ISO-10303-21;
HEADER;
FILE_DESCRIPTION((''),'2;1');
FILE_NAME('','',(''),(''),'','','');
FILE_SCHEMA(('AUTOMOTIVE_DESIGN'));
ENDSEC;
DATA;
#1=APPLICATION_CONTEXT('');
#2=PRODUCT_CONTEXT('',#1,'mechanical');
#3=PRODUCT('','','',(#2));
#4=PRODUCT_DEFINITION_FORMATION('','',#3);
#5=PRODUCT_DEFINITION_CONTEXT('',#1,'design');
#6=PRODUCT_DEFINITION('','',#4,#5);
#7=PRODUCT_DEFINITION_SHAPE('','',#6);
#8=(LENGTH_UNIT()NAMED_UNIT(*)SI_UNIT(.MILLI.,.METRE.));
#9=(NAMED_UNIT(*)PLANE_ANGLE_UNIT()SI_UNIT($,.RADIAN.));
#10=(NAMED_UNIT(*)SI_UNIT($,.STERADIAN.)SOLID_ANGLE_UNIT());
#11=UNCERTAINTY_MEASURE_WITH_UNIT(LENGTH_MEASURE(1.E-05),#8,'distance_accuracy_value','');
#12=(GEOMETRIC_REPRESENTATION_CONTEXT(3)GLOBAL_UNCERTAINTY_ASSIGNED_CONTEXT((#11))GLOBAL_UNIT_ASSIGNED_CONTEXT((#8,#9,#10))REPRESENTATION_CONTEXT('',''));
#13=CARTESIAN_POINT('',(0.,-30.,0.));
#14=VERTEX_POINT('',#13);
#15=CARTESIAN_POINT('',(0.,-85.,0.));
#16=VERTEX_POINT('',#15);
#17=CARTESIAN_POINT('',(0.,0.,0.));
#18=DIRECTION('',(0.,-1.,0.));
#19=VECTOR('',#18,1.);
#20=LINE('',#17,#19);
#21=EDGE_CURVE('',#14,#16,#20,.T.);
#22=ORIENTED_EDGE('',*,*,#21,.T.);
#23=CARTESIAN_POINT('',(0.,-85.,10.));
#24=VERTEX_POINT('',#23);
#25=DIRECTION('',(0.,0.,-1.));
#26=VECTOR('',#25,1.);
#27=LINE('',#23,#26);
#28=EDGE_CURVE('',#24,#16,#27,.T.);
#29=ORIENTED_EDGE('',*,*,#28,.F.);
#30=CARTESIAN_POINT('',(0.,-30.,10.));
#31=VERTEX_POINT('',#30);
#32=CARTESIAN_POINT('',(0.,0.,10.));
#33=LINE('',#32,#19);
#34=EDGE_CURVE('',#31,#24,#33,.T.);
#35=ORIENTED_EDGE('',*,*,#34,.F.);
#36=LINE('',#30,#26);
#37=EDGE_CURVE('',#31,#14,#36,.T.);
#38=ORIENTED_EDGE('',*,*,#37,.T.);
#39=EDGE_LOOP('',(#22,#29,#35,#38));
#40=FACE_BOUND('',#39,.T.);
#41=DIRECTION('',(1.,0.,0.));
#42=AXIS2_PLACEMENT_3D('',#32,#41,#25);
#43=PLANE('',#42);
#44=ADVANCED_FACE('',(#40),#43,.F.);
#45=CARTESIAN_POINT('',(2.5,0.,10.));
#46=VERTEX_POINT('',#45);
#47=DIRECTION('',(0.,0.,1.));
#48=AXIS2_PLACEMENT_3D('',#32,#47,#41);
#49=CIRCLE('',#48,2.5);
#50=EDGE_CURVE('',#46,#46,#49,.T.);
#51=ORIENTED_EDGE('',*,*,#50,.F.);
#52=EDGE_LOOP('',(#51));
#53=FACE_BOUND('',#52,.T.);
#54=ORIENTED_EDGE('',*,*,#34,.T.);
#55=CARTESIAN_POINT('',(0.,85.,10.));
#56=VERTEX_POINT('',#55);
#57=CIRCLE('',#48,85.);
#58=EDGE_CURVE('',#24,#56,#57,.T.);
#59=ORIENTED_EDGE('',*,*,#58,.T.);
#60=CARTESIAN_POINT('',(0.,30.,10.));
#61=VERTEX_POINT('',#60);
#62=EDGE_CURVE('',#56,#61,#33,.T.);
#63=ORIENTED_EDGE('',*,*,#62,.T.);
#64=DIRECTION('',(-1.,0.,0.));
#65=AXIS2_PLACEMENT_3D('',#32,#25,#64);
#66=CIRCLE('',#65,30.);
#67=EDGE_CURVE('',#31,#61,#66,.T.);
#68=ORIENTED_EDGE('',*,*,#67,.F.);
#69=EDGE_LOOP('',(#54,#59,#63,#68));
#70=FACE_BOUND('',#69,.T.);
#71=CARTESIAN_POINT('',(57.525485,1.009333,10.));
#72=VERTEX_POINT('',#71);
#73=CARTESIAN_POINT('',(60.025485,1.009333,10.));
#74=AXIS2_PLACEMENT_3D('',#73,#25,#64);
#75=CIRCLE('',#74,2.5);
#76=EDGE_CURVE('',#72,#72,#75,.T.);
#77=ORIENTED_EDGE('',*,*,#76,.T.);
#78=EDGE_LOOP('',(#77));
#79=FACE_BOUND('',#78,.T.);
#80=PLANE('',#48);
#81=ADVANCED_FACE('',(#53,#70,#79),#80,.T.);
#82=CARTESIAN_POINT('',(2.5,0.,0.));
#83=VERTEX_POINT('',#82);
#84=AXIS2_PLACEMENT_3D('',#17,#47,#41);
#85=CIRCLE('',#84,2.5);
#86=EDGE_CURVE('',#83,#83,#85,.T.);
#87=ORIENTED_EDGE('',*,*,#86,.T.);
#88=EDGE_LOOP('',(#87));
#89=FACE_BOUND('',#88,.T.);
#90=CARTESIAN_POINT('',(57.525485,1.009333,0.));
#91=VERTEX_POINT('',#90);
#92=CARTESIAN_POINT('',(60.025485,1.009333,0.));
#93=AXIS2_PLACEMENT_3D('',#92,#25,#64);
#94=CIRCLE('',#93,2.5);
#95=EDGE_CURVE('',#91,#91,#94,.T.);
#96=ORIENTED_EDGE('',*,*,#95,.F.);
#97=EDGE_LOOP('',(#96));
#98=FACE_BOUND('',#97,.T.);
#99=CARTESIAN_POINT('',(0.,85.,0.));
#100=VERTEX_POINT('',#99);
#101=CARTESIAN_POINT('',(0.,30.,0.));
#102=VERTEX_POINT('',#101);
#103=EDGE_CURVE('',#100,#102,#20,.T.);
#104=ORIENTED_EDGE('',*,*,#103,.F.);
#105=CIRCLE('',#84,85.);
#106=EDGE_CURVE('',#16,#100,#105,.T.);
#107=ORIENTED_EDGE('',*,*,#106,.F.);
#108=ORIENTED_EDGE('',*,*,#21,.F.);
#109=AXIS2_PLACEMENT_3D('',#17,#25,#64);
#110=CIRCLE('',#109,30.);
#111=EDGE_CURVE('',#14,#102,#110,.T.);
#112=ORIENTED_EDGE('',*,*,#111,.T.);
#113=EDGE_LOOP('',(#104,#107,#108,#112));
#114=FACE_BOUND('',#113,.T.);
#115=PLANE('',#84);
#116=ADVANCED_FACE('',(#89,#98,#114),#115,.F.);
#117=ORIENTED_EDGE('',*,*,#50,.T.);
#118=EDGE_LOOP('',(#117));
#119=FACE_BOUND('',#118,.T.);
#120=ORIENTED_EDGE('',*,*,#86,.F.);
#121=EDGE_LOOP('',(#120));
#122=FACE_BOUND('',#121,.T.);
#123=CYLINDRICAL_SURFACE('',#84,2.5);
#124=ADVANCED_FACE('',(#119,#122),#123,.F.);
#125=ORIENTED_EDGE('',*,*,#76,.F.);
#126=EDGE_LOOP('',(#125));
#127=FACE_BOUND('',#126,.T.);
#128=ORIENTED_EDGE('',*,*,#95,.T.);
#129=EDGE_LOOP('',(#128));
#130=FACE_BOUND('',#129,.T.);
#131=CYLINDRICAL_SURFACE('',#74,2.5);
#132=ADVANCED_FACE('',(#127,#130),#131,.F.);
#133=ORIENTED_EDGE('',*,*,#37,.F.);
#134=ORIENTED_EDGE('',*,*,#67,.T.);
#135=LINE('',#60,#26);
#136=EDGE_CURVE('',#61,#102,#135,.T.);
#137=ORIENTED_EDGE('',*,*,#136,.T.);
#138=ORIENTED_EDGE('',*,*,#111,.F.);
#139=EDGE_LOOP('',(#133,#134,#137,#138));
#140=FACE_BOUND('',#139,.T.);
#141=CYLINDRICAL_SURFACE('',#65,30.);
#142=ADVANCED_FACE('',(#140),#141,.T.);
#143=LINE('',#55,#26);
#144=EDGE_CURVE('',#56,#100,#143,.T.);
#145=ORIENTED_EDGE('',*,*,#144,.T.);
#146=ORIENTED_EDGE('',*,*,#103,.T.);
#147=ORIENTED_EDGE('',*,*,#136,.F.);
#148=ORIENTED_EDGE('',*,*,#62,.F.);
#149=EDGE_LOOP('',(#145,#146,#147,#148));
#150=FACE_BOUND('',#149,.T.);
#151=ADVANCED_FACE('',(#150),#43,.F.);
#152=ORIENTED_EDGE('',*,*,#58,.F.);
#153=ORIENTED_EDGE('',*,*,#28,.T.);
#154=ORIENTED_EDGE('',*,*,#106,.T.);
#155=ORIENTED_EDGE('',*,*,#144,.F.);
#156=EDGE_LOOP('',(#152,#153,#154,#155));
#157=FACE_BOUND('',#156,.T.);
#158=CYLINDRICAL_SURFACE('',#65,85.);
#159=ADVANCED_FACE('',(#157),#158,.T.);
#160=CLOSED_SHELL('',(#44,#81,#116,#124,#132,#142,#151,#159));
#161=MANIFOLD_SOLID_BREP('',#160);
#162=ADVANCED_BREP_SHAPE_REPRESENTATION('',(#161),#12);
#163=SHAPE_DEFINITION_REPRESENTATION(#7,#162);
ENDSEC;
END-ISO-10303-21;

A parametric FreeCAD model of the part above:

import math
import FreeCAD as App
import Part
import Sketcher
Q = App.Units.Quantity

doc = App.newDocument("Part")
body = doc.addObject("PartDesign::Body", "Body")

sketch1 = body.newObject("Sketcher::SketchObject", "Sketch")
sketch1.AttachmentSupport = (doc.getObject("XY_Plane"), [""])
sketch1.MapMode = "FlatFace"
sketch1.addGeometry(Part.Circle(App.Vector(0, 0, 0), App.Vector(0, 0, 1), 85), False)
sketch1.addConstraint(Sketcher.Constraint("Coincident", 0, 3, -1, 1))
sketch1.addConstraint(Sketcher.Constraint("Diameter", 0, Q("170 mm")))
pad1 = body.newObject("PartDesign::Pad", "Pad")
pad1.Profile = sketch1
pad1.Length = 10

sketch2 = body.newObject("Sketcher::SketchObject", "Sketch001")
sketch2.AttachmentSupport = (doc.getObject("XY_Plane"), [""])
sketch2.MapMode = "FlatFace"
sketch2.AttachmentOffset = App.Placement(App.Vector(0, 0, 10), App.Rotation())
sketch2.addGeometry(Part.Circle(App.Vector(0, 0, 0), App.Vector(0, 0, 1), 2.5), False)
sketch2.addGeometry(Part.Circle(App.Vector(80, 0, 0), App.Vector(0, 0, 1), 2.5), False)
sketch2.addConstraint(Sketcher.Constraint("Coincident", 0, 3, -1, 1))
sketch2.addConstraint(Sketcher.Constraint("Equal", 0, 1))
sketch2.addConstraint(Sketcher.Constraint("PointOnObject", 1, 3, -1))
sketch2.addConstraint(Sketcher.Constraint("Diameter", 0, Q("5 mm")))
sketch2.addConstraint(Sketcher.Constraint("DistanceX", -1, 1, 1, 3, Q("80 mm")))
pocket1 = body.newObject("PartDesign::Pocket", "Pocket")
pocket1.Profile = sketch2
pocket1.Type = "ThroughAll"

sketch3 = body.newObject("Sketcher::SketchObject", "Sketch002")
sketch3.AttachmentSupport = (doc.getObject("XY_Plane"), [""])
sketch3.MapMode = "FlatFace"
sketch3.addGeometry(Part.Circle(App.Vector(60, 1, 0), App.Vector(0, 0, 1), 2.5), False)
sketch3.addConstraint(Sketcher.Constraint("Diameter", 0, Q("5 mm")))
sketch3.addConstraint(Sketcher.Constraint("DistanceX", -1, 1, 0, 3, Q("60.025485 mm")))
sketch3.addConstraint(Sketcher.Constraint("DistanceY", -1, 1, 0, 3, Q("1.009333 mm")))
pocket2 = body.newObject("PartDesign::Pocket", "Pocket001")
pocket2.Profile = sketch3
pocket2.Type = "ThroughAll"
pocket2.Reversed = True

sketch4 = body.newObject("Sketcher::SketchObject", "Sketch003")
sketch4.AttachmentSupport = (doc.getObject("XY_Plane"), [""])
sketch4.MapMode = "FlatFace"
sketch4.addGeometry(Part.ArcOfCircle(Part.Circle(App.Vector(0, 0, 0), App.Vector(0, 0, 1), 85), math.radians(90), math.radians(180)), False)
sketch4.addGeometry(Part.LineSegment(App.Vector(0, 85, 0), App.Vector(0, 30, 0)), False)
sketch4.addGeometry(Part.ArcOfCircle(Part.Circle(App.Vector(0, 0, 0), App.Vector(0, 0, 1), 30), math.radians(90), math.radians(180)), False)
sketch4.addGeometry(Part.ArcOfCircle(Part.Circle(App.Vector(0, 0, 0), App.Vector(0, 0, 1), 30), math.radians(180), math.radians(270)), False)
sketch4.addGeometry(Part.LineSegment(App.Vector(0, -30, 0), App.Vector(0, -85, 0)), False)
sketch4.addGeometry(Part.ArcOfCircle(Part.Circle(App.Vector(0, 0, 0), App.Vector(0, 0, 1), 85), math.radians(180), math.radians(270)), False)
sketch4.addConstraint(Sketcher.Constraint("Coincident", 0, 1, 1, 1))
sketch4.addConstraint(Sketcher.Constraint("Coincident", 1, 2, 2, 1))
sketch4.addConstraint(Sketcher.Constraint("Tangent", 2, 2, 3, 1))
sketch4.addConstraint(Sketcher.Constraint("Coincident", 3, 2, 4, 1))
sketch4.addConstraint(Sketcher.Constraint("Coincident", 4, 2, 5, 2))
sketch4.addConstraint(Sketcher.Constraint("Tangent", 5, 1, 0, 2))
sketch4.addConstraint(Sketcher.Constraint("Vertical", 1))
sketch4.addConstraint(Sketcher.Constraint("Vertical", 4))
sketch4.addConstraint(Sketcher.Constraint("Coincident", 0, 3, -1, 1))
sketch4.addConstraint(Sketcher.Constraint("Coincident", 2, 3, -1, 1))
sketch4.addConstraint(Sketcher.Constraint("Equal", 2, 3))
sketch4.addConstraint(Sketcher.Constraint("Equal", 0, 5))
sketch4.addConstraint(Sketcher.Constraint("PointOnObject", 0, 1, -2))
sketch4.addConstraint(Sketcher.Constraint("PointOnObject", 2, 2, -1))
sketch4.addConstraint(Sketcher.Constraint("PointOnObject", 3, 2, -2))
sketch4.addConstraint(Sketcher.Constraint("PointOnObject", 5, 1, -1))
sketch4.addConstraint(Sketcher.Constraint("Radius", 0, Q("85 mm")))
sketch4.addConstraint(Sketcher.Constraint("Radius", 2, Q("30 mm")))
pocket3 = body.newObject("PartDesign::Pocket", "Pocket002")
pocket3.Profile = sketch4
pocket3.Type = "ThroughAll"
pocket3.Reversed = True

sketch5 = body.newObject("Sketcher::SketchObject", "Sketch004")
sketch5.AttachmentSupport = (doc.getObject("XY_Plane"), [""])
sketch5.MapMode = "FlatFace"
sketch5.AttachmentOffset = App.Placement(App.Vector(0, 0, 10), App.Rotation())
sketch5.addGeometry(Part.Circle(App.Vector(80, 0, 0), App.Vector(0, 0, 1), 2.5), False)
sketch5.addConstraint(Sketcher.Constraint("PointOnObject", 0, 3, -1))
sketch5.addConstraint(Sketcher.Constraint("Diameter", 0, Q("5 mm")))
sketch5.addConstraint(Sketcher.Constraint("DistanceX", -1, 1, 0, 3, Q("80 mm")))
pad2 = body.newObject("PartDesign::Pad", "Pad001")
pad2.Profile = sketch5
pad2.Length = 10
pad2.Reversed = True

doc.recompute()
